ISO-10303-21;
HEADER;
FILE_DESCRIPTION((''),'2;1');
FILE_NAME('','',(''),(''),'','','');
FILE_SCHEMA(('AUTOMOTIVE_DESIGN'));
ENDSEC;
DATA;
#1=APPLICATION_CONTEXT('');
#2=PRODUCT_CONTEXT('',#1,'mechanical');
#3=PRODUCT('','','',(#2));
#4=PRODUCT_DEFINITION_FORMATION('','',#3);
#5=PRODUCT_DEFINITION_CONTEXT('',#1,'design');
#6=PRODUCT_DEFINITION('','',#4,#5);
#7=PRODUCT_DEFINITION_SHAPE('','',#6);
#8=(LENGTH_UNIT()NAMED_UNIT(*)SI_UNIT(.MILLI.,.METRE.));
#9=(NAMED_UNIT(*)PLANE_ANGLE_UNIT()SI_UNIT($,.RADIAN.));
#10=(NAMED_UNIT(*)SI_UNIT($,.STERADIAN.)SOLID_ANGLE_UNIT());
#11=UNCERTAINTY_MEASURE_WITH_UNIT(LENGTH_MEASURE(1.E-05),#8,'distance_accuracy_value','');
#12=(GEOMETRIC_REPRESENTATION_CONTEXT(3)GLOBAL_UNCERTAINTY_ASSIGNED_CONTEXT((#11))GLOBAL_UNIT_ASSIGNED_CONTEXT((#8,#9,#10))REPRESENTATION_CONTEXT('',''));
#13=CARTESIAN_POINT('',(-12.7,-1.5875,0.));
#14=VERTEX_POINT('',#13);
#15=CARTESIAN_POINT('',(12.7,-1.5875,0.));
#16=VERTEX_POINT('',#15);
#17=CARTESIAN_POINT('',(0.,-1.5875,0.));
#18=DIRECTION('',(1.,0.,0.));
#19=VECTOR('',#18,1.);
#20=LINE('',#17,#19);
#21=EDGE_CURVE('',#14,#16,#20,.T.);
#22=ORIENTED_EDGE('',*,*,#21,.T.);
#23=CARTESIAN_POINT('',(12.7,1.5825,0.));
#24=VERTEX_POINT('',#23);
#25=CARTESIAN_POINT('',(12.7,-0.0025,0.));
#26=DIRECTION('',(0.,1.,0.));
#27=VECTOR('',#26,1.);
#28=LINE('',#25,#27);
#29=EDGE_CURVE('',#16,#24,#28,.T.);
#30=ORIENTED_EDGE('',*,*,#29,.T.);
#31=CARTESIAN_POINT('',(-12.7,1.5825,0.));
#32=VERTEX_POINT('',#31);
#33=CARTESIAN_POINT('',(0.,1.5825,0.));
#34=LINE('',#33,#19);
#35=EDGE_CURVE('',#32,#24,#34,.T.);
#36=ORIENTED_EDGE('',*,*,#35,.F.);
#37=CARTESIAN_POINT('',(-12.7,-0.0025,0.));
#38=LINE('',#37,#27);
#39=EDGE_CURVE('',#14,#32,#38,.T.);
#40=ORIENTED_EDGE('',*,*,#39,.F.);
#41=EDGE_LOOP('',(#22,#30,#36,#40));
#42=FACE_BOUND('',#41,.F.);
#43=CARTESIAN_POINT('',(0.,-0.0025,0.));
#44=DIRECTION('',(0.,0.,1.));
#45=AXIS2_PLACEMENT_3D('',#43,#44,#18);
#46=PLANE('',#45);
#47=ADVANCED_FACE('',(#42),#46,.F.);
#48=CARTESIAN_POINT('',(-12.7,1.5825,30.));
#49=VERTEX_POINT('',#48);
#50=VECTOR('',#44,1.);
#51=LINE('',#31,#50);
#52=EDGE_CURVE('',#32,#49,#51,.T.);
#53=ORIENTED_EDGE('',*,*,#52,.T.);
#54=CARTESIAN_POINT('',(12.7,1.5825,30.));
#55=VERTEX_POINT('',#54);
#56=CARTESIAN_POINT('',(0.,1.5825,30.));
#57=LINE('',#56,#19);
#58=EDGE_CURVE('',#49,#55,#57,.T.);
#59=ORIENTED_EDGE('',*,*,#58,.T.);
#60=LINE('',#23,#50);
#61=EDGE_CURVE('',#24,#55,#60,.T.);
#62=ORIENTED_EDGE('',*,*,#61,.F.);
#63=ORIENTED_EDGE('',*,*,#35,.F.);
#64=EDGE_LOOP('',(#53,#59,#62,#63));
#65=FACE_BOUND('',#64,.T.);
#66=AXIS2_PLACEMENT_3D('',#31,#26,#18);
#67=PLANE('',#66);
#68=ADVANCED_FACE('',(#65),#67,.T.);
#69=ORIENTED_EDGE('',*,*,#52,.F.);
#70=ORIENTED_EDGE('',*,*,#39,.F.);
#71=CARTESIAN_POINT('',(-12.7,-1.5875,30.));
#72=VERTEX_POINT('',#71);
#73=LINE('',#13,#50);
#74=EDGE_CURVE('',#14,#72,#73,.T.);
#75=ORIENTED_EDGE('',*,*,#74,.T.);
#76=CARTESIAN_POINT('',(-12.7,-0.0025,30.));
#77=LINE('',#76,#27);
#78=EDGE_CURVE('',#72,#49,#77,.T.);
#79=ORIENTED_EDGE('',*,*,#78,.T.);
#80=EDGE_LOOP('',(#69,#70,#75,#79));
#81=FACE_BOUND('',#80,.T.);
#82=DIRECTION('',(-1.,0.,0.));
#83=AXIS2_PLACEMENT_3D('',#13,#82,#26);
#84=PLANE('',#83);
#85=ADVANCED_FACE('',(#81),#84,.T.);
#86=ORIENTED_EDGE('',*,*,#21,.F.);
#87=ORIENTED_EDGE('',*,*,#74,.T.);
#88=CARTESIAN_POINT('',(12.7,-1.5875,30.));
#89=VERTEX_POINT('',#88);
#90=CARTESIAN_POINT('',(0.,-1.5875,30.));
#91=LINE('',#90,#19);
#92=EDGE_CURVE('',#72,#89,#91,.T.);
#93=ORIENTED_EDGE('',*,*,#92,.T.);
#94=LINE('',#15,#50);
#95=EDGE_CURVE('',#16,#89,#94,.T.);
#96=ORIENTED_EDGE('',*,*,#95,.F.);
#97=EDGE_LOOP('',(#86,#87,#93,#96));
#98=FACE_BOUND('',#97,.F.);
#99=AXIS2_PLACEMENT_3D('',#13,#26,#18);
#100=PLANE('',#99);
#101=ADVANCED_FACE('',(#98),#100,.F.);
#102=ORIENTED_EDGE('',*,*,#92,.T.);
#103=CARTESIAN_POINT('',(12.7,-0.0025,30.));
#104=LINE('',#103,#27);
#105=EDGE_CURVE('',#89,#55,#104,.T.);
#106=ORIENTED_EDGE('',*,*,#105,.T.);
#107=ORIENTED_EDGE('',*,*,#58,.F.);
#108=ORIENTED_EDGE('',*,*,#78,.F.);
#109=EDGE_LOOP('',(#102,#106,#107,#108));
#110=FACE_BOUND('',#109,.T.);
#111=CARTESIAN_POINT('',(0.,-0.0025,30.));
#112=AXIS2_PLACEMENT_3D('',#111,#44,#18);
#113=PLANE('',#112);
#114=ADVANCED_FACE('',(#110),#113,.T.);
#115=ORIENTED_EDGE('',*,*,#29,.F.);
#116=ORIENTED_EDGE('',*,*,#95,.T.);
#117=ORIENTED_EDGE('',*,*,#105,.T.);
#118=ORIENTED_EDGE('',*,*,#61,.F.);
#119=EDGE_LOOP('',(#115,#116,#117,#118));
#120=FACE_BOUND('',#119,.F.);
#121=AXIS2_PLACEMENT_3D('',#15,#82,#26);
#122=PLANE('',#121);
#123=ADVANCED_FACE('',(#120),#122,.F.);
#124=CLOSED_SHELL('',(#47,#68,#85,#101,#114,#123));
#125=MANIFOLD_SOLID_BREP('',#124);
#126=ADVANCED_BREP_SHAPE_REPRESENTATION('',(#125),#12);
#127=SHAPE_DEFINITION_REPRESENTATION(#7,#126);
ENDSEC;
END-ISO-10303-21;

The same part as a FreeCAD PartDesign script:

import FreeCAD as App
import Part
import Sketcher

V = App.Vector
Q = App.Units.Quantity


def add_polygon(sketch, points):
    """Adds a closed chain of lines whose ends are joined by coincident constraints."""
    first, n = sketch.GeometryCount, len(points)
    for a, b in zip(points, points[1:] + points[:1]):
        sketch.addGeometry(Part.LineSegment(App.Vector(*a, 0), App.Vector(*b, 0)), False)
    for i in range(n):
        sketch.addConstraint(Sketcher.Constraint("Coincident", first + i, 2, first + (i + 1) % n, 1))

doc = App.newDocument("Part")
body = doc.addObject("PartDesign::Body", "Body")

# Sketch on XY plane
sketch1 = doc.addObject("Sketcher::SketchObject", "Sketch")
body.addObject(sketch1)
sketch1.AttachmentSupport = (doc.XY_Plane, [""])
sketch1.MapMode = "FlatFace"
add_polygon(sketch1, [(-12.7, 1.6), (-12.7, -1.6), (12.7, -1.6), (12.7, 1.6)])  # lines 0-3
sketch1.addConstraint([
    Sketcher.Constraint("Vertical", 0),
    Sketcher.Constraint("Horizontal", 1),
    Sketcher.Constraint("Vertical", 2),
    Sketcher.Constraint("Horizontal", 3),
    Sketcher.Constraint("DistanceX", 1, 1, 1, 2, Q("25.4 mm")),
    Sketcher.Constraint("DistanceY", 0, 2, 0, 1, Q("3.17 mm")),
    Sketcher.Constraint("DistanceX", 0, 2, -1, 1, Q("12.7 mm")),
    Sketcher.Constraint("DistanceY", 0, 2, -1, 1, Q("1.5875 mm")),
])
pad1 = doc.addObject("PartDesign::Pad", "Pad")
body.addObject(pad1)
pad1.Profile = sketch1
pad1.Length = 30

doc.recompute()
